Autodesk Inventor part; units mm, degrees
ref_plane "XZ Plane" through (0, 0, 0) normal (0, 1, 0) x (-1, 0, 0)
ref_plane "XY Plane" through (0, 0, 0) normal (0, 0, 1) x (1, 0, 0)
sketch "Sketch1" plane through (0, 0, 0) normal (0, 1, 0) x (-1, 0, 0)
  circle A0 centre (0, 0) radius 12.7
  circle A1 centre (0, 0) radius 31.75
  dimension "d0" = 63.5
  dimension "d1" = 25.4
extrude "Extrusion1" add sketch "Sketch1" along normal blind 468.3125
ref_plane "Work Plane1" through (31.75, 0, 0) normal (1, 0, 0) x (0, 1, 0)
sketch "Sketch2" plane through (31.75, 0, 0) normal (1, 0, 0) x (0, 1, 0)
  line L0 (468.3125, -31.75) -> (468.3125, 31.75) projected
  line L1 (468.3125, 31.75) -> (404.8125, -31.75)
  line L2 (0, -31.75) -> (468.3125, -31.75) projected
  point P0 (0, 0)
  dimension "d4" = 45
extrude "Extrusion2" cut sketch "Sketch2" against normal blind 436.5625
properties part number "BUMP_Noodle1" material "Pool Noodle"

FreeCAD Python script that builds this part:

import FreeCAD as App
import Part
import Sketcher
Q = App.Units.Quantity

doc = App.newDocument("Part")
body = doc.addObject("PartDesign::Body", "Body")

# Sketch on XZ plane
sketch1 = body.newObject("Sketcher::SketchObject", "Sketch")
sketch1.AttachmentSupport = (doc.getObject("XZ_Plane"), [""])
sketch1.MapMode = "FlatFace"
sketch1.addGeometry(Part.Circle(App.Vector(0, 0, 0), App.Vector(0, 0, 1), 31.75), False)
sketch1.addGeometry(Part.Circle(App.Vector(0, 0, 0), App.Vector(0, 0, 1), 12.7), False)
sketch1.addConstraint(Sketcher.Constraint("Coincident", 0, 3, -1, 1))
sketch1.addConstraint(Sketcher.Constraint("Coincident", 1, 3, -1, 1))
sketch1.addConstraint(Sketcher.Constraint("Diameter", 1, Q("1 in")))
sketch1.addConstraint(Sketcher.Constraint("Diameter", 0, Q("2.5 in")))
pad1 = body.newObject("PartDesign::Pad", "Pad")
pad1.Profile = sketch1
pad1.Length = Q("18.4375 in")
pad1.Reversed = True

# Sketch on YZ plane
sketch2 = body.newObject("Sketcher::SketchObject", "Sketch001")
sketch2.AttachmentSupport = (doc.getObject("YZ_Plane"), [""])
sketch2.MapMode = "FlatFace"
sketch2.AttachmentOffset = App.Placement(App.Vector(0, 0, 1.25 * 25.4), App.Rotation())
sketch2.addGeometry(Part.LineSegment(App.Vector(404.8125, -31.75, 0), App.Vector(468.3125, -31.75, 0)), False)
sketch2.addGeometry(Part.LineSegment(App.Vector(468.3125, -31.75, 0), App.Vector(468.3125, 31.75, 0)), False)
sketch2.addGeometry(Part.LineSegment(App.Vector(468.3125, 31.75, 0), App.Vector(404.8125, -31.75, 0)), False)
sketch2.addConstraint(Sketcher.Constraint("Coincident", 0, 2, 1, 1))
sketch2.addConstraint(Sketcher.Constraint("Coincident", 1, 2, 2, 1))
sketch2.addConstraint(Sketcher.Constraint("Coincident", 2, 2, 0, 1))
sketch2.addConstraint(Sketcher.Constraint("Horizontal", 0))
sketch2.addConstraint(Sketcher.Constraint("Vertical", 1))
sketch2.addConstraint(Sketcher.Constraint("Equal", 0, 1))
sketch2.addConstraint(Sketcher.Constraint("DistanceX", 0, 1, 0, 2, Q("2.5 in")))
sketch2.addConstraint(Sketcher.Constraint("DistanceY", 0, 2, -1, 1, Q("1.25 in")))
sketch2.addConstraint(Sketcher.Constraint("DistanceX", -1, 1, 0, 2, Q("18.4375 in")))
pocket1 = body.newObject("PartDesign::Pocket", "Pocket")
pocket1.Profile = sketch2
pocket1.Length = Q("17.1875 in")

doc.recompute()
